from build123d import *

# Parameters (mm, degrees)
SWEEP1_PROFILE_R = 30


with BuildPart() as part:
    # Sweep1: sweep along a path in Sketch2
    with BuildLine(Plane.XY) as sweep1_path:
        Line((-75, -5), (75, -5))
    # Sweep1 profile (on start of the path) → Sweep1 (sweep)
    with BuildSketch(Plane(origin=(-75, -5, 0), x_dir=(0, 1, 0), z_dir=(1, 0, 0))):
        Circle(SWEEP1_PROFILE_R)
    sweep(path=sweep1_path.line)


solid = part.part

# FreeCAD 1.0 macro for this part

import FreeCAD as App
import Part
import Sketcher
from FreeCAD import Vector

doc = App.newDocument("Part")
body = doc.addObject("PartDesign::Body", "Body")

# Sketch on YZ plane
sketch1 = body.newObject("Sketcher::SketchObject", "Sketch")
sketch1.AttachmentSupport = (doc.getObject("YZ_Plane"), [""])
sketch1.MapMode = "FlatFace"
sketch1.AttachmentOffset = App.Placement(Vector(0, 0, -75), App.Rotation())
sketch1.addGeometry(Part.Circle(Vector(-5, 0, 0), Vector(0, 0, 1), 30), False)
sketch1.addConstraint(Sketcher.Constraint("PointOnObject", 0, 3, -1))
sketch1.addConstraint(Sketcher.Constraint("Diameter", 0, 60.0))
sketch1.addConstraint(Sketcher.Constraint("DistanceX", 0, 3, -1, 1, 5.0))

# Sketch on XY plane
sketch2 = body.newObject("Sketcher::SketchObject", "Sketch001")
sketch2.AttachmentSupport = (doc.getObject("XY_Plane"), [""])
sketch2.MapMode = "FlatFace"
sketch2.addGeometry(Part.LineSegment(Vector(-75, -5, 0), Vector(75, -5, 0)), False)
sketch2.addConstraint(Sketcher.Constraint("Horizontal", 0))
sketch2.addConstraint(Sketcher.Constraint("DistanceX", 0, 1, 0, 2, 150.0))
sketch2.addConstraint(Sketcher.Constraint("DistanceX", 0, 1, -1, 1, 75.0))
sketch2.addConstraint(Sketcher.Constraint("DistanceY", 0, 1, -1, 1, 5.0))
doc.recompute()

additivepipe = body.newObject("PartDesign::AdditivePipe", "AdditivePipe")
additivepipe.Profile = sketch1
additivepipe.Spine = (sketch2, ["Edge1"])

doc.recompute()
